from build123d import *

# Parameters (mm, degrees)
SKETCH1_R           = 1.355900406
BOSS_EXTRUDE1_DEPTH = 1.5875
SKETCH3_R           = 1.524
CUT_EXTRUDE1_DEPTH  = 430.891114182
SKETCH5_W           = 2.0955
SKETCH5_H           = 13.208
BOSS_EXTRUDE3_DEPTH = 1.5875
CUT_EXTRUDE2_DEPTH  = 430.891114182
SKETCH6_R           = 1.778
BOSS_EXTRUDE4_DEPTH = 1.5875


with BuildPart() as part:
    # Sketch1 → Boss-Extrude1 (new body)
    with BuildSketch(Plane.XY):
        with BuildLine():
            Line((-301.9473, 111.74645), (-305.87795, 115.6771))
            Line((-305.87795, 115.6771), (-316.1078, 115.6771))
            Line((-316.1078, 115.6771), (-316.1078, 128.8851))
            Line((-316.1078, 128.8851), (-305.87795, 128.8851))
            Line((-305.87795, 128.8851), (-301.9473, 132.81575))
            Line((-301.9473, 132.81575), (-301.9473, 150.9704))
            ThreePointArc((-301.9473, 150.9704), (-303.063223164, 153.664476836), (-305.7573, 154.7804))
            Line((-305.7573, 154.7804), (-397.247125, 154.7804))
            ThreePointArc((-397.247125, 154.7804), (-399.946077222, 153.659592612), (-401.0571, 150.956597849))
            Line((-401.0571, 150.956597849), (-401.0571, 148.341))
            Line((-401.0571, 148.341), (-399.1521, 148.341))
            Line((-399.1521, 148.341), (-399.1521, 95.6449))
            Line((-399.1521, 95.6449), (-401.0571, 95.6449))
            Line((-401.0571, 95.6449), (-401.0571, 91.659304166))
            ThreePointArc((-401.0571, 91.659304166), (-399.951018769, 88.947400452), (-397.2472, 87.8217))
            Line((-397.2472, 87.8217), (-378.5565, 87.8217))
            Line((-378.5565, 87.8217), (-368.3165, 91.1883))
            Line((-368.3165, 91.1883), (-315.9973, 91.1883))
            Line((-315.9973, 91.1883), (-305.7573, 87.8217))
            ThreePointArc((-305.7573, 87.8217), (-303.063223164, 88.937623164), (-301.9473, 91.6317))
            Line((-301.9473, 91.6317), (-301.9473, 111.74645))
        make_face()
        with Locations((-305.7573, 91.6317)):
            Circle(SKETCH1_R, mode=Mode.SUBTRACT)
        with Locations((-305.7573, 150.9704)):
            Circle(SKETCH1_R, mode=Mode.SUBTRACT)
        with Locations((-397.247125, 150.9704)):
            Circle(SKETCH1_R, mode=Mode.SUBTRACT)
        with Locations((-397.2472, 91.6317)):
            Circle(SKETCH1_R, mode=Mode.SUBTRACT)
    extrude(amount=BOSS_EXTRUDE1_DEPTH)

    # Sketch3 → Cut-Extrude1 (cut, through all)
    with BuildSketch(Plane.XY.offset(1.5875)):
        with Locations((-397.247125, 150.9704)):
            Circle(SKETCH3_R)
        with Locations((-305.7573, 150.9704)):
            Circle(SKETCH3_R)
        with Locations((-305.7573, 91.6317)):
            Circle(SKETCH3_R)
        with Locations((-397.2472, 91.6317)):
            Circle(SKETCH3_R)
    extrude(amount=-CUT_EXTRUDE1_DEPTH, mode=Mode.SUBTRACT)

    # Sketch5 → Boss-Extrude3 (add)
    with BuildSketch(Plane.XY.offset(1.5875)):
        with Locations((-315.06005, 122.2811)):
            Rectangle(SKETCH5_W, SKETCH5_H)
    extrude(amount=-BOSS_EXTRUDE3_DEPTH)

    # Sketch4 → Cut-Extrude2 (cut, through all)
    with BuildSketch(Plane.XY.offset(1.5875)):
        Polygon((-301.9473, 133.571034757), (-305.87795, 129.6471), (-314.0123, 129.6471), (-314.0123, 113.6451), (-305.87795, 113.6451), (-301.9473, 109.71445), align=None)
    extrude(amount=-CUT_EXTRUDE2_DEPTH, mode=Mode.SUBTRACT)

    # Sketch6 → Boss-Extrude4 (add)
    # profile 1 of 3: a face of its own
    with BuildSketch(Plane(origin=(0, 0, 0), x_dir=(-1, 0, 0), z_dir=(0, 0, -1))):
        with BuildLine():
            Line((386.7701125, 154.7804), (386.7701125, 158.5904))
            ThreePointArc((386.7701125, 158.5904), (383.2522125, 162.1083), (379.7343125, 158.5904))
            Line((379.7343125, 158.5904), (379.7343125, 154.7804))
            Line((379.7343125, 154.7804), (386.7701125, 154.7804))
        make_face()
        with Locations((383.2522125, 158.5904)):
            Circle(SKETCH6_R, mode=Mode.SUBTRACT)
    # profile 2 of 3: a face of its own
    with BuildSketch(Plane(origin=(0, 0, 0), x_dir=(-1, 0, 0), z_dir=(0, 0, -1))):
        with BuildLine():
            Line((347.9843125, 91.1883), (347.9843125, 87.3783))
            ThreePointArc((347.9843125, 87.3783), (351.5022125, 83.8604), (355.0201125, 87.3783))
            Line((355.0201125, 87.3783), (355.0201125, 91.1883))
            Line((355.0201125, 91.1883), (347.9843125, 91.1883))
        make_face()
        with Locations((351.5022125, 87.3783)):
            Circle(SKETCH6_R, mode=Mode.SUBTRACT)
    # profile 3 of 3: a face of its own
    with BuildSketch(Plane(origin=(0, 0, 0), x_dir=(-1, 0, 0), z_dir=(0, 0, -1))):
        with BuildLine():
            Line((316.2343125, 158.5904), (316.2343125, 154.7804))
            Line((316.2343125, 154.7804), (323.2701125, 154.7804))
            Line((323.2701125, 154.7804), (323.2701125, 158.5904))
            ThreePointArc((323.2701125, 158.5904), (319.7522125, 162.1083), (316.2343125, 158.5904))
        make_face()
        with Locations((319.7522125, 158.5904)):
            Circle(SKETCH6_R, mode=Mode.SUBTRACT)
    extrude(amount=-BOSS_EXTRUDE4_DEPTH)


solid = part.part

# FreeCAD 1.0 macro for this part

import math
import FreeCAD as App
import Part
import Sketcher
Q = App.Units.Quantity


def add_polygon(sketch, points):
    """Adds a closed chain of lines whose ends are joined by coincident constraints."""
    first, n = sketch.GeometryCount, len(points)
    for a, b in zip(points, points[1:] + points[:1]):
        sketch.addGeometry(Part.LineSegment(App.Vector(*a, 0), App.Vector(*b, 0)), False)
    for i in range(n):
        sketch.addConstraint(Sketcher.Constraint("Coincident", first + i, 2, first + (i + 1) % n, 1))

doc = App.newDocument("Part")
params = doc.addObject("Spreadsheet::Sheet", "Params")
for row, (alias, value) in enumerate([
    ("sketch1_radius", "0.15 in"),
    ("sketch1_height", "0.52 in"),
    ("sketch1_width", "0.075 in"),
    ("pad1_length", "0.0625 in"),
    ("sketch2_diameter", "0.12 in"),
    ("sketch3_height", "0.52 in"),
    ("pad2_length", "0.0625 in"),
    ("sketch4_height", "0.63 in"),
    ("sketch5_diameter", "0.14 in"),
    ("sketch5_height", "0.15 in"),
    ("pad3_length", "0.0625 in"),
], start=1):
    params.set(f"A{row}", alias)
    params.set(f"B{row}", "=" + value)
    params.setAlias(f"B{row}", alias)

body = doc.addObject("PartDesign::Body", "Body")

# Sketch on XY plane
sketch1 = body.newObject("Sketcher::SketchObject", "Sketch")
sketch1.AttachmentSupport = (doc.getObject("XY_Plane"), [""])
sketch1.MapMode = "FlatFace"
sketch1.addGeometry(Part.LineSegment(App.Vector(-301.9473, 111.74645, 0), App.Vector(-305.87795, 115.6771, 0)), False)
sketch1.addGeometry(Part.LineSegment(App.Vector(-305.87795, 115.6771, 0), App.Vector(-316.1078, 115.6771, 0)), False)
sketch1.addGeometry(Part.LineSegment(App.Vector(-316.1078, 115.6771, 0), App.Vector(-316.1078, 128.8851, 0)), False)
sketch1.addGeometry(Part.LineSegment(App.Vector(-316.1078, 128.8851, 0), App.Vector(-305.87795, 128.8851, 0)), False)
sketch1.addGeometry(Part.LineSegment(App.Vector(-305.87795, 128.8851, 0), App.Vector(-301.9473, 132.81575, 0)), False)
sketch1.addGeometry(Part.LineSegment(App.Vector(-301.9473, 132.81575, 0), App.Vector(-301.9473, 150.9704, 0)), False)
sketch1.addGeometry(Part.ArcOfCircle(Part.Circle(App.Vector(-305.7573, 150.9704, 0), App.Vector(0, 0, 1), 3.81), math.radians(0), math.radians(90)), False)
sketch1.addGeometry(Part.LineSegment(App.Vector(-305.7573, 154.7804, 0), App.Vector(-397.247125, 154.7804, 0)), False)
sketch1.addGeometry(Part.ArcOfCircle(Part.Circle(App.Vector(-397.247125, 150.9704, 0), App.Vector(0, 0, 1), 3.81), math.radians(90), math.radians(180.207561)), False)
sketch1.addGeometry(Part.LineSegment(App.Vector(-401.0571, 150.956598, 0), App.Vector(-401.0571, 148.341, 0)), False)
sketch1.addGeometry(Part.LineSegment(App.Vector(-401.0571, 148.341, 0), App.Vector(-399.1521, 148.341, 0)), False)
sketch1.addGeometry(Part.LineSegment(App.Vector(-399.1521, 148.341, 0), App.Vector(-399.1521, 95.6449, 0)), False)
sketch1.addGeometry(Part.LineSegment(App.Vector(-399.1521, 95.6449, 0), App.Vector(-401.0571, 95.6449, 0)), False)
sketch1.addGeometry(Part.LineSegment(App.Vector(-401.0571, 95.6449, 0), App.Vector(-401.0571, 91.659304, 0)), False)
sketch1.addGeometry(Part.ArcOfCircle(Part.Circle(App.Vector(-397.2472, 91.6317, 0), App.Vector(0, 0, 1), 3.81), math.radians(179.584878), math.radians(270)), False)
sketch1.addGeometry(Part.LineSegment(App.Vector(-397.2472, 87.8217, 0), App.Vector(-378.5565, 87.8217, 0)), False)
sketch1.addGeometry(Part.LineSegment(App.Vector(-378.5565, 87.8217, 0), App.Vector(-368.3165, 91.1883, 0)), False)
sketch1.addGeometry(Part.LineSegment(App.Vector(-368.3165, 91.1883, 0), App.Vector(-315.9973, 91.1883, 0)), False)
sketch1.addGeometry(Part.LineSegment(App.Vector(-315.9973, 91.1883, 0), App.Vector(-305.7573, 87.8217, 0)), False)
sketch1.addGeometry(Part.ArcOfCircle(Part.Circle(App.Vector(-305.7573, 91.6317, 0), App.Vector(0, 0, 1), 3.81), math.radians(-90), math.radians(0)), False)
sketch1.addGeometry(Part.LineSegment(App.Vector(-301.9473, 91.6317, 0), App.Vector(-301.9473, 111.74645, 0)), False)
sketch1.addGeometry(Part.Circle(App.Vector(-397.2472, 91.6317, 0), App.Vector(0, 0, 1), 1.3559), False)
sketch1.addGeometry(Part.Circle(App.Vector(-305.7573, 91.6317, 0), App.Vector(0, 0, 1), 1.3559), False)
sketch1.addGeometry(Part.Circle(App.Vector(-397.247125, 150.9704, 0), App.Vector(0, 0, 1), 1.3559), False)
sketch1.addGeometry(Part.Circle(App.Vector(-305.7573, 150.9704, 0), App.Vector(0, 0, 1), 1.3559), False)
sketch1.addConstraint(Sketcher.Constraint("Coincident", 0, 2, 1, 1))
sketch1.addConstraint(Sketcher.Constraint("Coincident", 1, 2, 2, 1))
sketch1.addConstraint(Sketcher.Constraint("Coincident", 2, 2, 3, 1))
sketch1.addConstraint(Sketcher.Constraint("Coincident", 3, 2, 4, 1))
sketch1.addConstraint(Sketcher.Constraint("Coincident", 4, 2, 5, 1))
sketch1.addConstraint(Sketcher.Constraint("Tangent", 5, 2, 6, 1))
sketch1.addConstraint(Sketcher.Constraint("Tangent", 6, 2, 7, 1))
sketch1.addConstraint(Sketcher.Constraint("Tangent", 7, 2, 8, 1))
sketch1.addConstraint(Sketcher.Constraint("Coincident", 8, 2, 9, 1))
sketch1.addConstraint(Sketcher.Constraint("Coincident", 9, 2, 10, 1))
sketch1.addConstraint(Sketcher.Constraint("Coincident", 10, 2, 11, 1))
sketch1.addConstraint(Sketcher.Constraint("Coincident", 11, 2, 12, 1))
sketch1.addConstraint(Sketcher.Constraint("Coincident", 12, 2, 13, 1))
sketch1.addConstraint(Sketcher.Constraint("Coincident", 13, 2, 14, 1))
sketch1.addConstraint(Sketcher.Constraint("Tangent", 14, 2, 15, 1))
sketch1.addConstraint(Sketcher.Constraint("Coincident", 15, 2, 16, 1))
sketch1.addConstraint(Sketcher.Constraint("Coincident", 16, 2, 17, 1))
sketch1.addConstraint(Sketcher.Constraint("Coincident", 17, 2, 18, 1))
sketch1.addConstraint(Sketcher.Constraint("Coincident", 18, 2, 19, 1))
sketch1.addConstraint(Sketcher.Constraint("Tangent", 19, 2, 20, 1))
sketch1.addConstraint(Sketcher.Constraint("Coincident", 20, 2, 0, 1))
sketch1.addConstraint(Sketcher.Constraint("Horizontal", 1))
sketch1.addConstraint(Sketcher.Constraint("Vertical", 2))
sketch1.addConstraint(Sketcher.Constraint("Horizontal", 3))
sketch1.addConstraint(Sketcher.Constraint("Vertical", 5))
sketch1.addConstraint(Sketcher.Constraint("Horizontal", 7))
sketch1.addConstraint(Sketcher.Constraint("Vertical", 9))
sketch1.addConstraint(Sketcher.Constraint("Horizontal", 10))
sketch1.addConstraint(Sketcher.Constraint("Vertical", 11))
sketch1.addConstraint(Sketcher.Constraint("Horizontal", 12))
sketch1.addConstraint(Sketcher.Constraint("Vertical", 13))
sketch1.addConstraint(Sketcher.Constraint("Horizontal", 15))
sketch1.addConstraint(Sketcher.Constraint("Horizontal", 17))
sketch1.addConstraint(Sketcher.Constraint("Vertical", 20))
sketch1.addConstraint(Sketcher.Constraint("Coincident", 21, 3, 14, 3))
sketch1.addConstraint(Sketcher.Constraint("Coincident", 22, 3, 19, 3))
sketch1.addConstraint(Sketcher.Constraint("Coincident", 23, 3, 8, 3))
sketch1.addConstraint(Sketcher.Constraint("Coincident", 24, 3, 6, 3))
sketch1.addConstraint(Sketcher.Constraint("Equal", 6, 8))
sketch1.addConstraint(Sketcher.Constraint("Equal", 8, 14))
sketch1.addConstraint(Sketcher.Constraint("Equal", 14, 19))
sketch1.addConstraint(Sketcher.Constraint("Equal", 21, 22))
sketch1.addConstraint(Sketcher.Constraint("Equal", 22, 23))
sketch1.addConstraint(Sketcher.Constraint("Equal", 23, 24))
sketch1.addConstraint(Sketcher.Constraint("Perpendicular", 0, 4))
sketch1.addConstraint(Sketcher.Constraint("Horizontal", 14, 3, 19, 3))
sketch1.addConstraint(Sketcher.Constraint("Vertical", 6, 3, 19, 3))
sketch1.addConstraint(Sketcher.Constraint("Vertical", 0, 2, 3, 2))
sketch1.addConstraint(Sketcher.Constraint("Vertical", 9, 2, 12, 2))
sketch1.addConstraint(Sketcher.Constraint("Vertical", 6, 2, 18, 2))
sketch1.addConstraint(Sketcher.Constraint("Equal", 0, 4))
sketch1.addConstraint(Sketcher.Constraint("Equal", 16, 18))
sketch1.addConstraint(Sketcher.Constraint("Radius", 6, Q("0.15 in")))
sketch1.addConstraint(Sketcher.Constraint("DistanceY", 2, 1, 2, 2, Q("0.52 in")))
sketch1.addConstraint(Sketcher.Constraint("Diameter", 21, 2.711801))
sketch1.addConstraint(Sketcher.Constraint("DistanceX", 10, 1, 10, 2, Q("0.075 in")))
sketch1.addConstraint(Sketcher.Constraint("DistanceY", 14, 3, 11, 2, Q("0.158 in")))
sketch1.addConstraint(Sketcher.Constraint("DistanceX", 11, 2, 16, 2, Q("1.214 in")))
sketch1.addConstraint(Sketcher.Constraint("DistanceX", 15, 1, 15, 2, 18.6907))
sketch1.addConstraint(Sketcher.Constraint("DistanceX", 17, 1, 17, 2, 52.3192))
sketch1.addConstraint(Sketcher.Constraint("DistanceY", 11, 2, 11, 1, 52.6961))
sketch1.addConstraint(Sketcher.Constraint("DistanceY", 0, 2, 6, 3, Q("1.3895 in")))
sketch1.addConstraint(Sketcher.Constraint("DistanceX", 1, 2, 19, 3, Q("0.4075 in")))
sketch1.addConstraint(Sketcher.Constraint("DistanceX", 1, 2, 1, 1, 10.22985))
sketch1.addConstraint(Sketcher.Constraint("DistanceY", 20, 1, 20, 2, 20.11475))
sketch1.addConstraint(Sketcher.Constraint("DistanceX", 6, 3, -1, 1, 305.7573))
sketch1.addConstraint(Sketcher.Constraint("DistanceY", -1, 1, 6, 3, 150.9704))
sketch1.addConstraint(Sketcher.Constraint("DistanceX", 14, 3, -1, 1, 397.2472))
sketch1.addConstraint(Sketcher.Constraint("DistanceY", -1, 1, 16, 2, 91.1883))
sketch1.addConstraint(Sketcher.Constraint("DistanceX", 7, 2, 7, 1, 91.489825))
sketch1.setExpression("Constraints[52]", "Params.sketch1_radius")
sketch1.setExpression("Constraints[53]", "Params.sketch1_height")
sketch1.setExpression("Constraints[55]", "Params.sketch1_width")
pad1 = body.newObject("PartDesign::Pad", "Pad")
pad1.Profile = sketch1
pad1.setExpression("Length", "Params.pad1_length")

# Sketch on XY plane
sketch2 = body.newObject("Sketcher::SketchObject", "Sketch001")
sketch2.AttachmentSupport = (doc.getObject("XY_Plane"), [""])
sketch2.MapMode = "FlatFace"
sketch2.AttachmentOffset = App.Placement(App.Vector(0, 0, 0.0625 * 25.4), App.Rotation())
sketch2.addGeometry(Part.Circle(App.Vector(-397.2, 151, 0), App.Vector(0, 0, 1), 1.5), False)
sketch2.addGeometry(Part.Circle(App.Vector(-305.8, 151, 0), App.Vector(0, 0, 1), 1.5), False)
sketch2.addGeometry(Part.Circle(App.Vector(-305.8, 91.6, 0), App.Vector(0, 0, 1), 1.5), False)
sketch2.addGeometry(Part.Circle(App.Vector(-397.2, 91.6, 0), App.Vector(0, 0, 1), 1.5), False)
sketch2.addConstraint(Sketcher.Constraint("Equal", 0, 1))
sketch2.addConstraint(Sketcher.Constraint("Equal", 1, 2))
sketch2.addConstraint(Sketcher.Constraint("Equal", 2, 3))
sketch2.addConstraint(Sketcher.Constraint("Horizontal", 0, 3, 1, 3))
sketch2.addConstraint(Sketcher.Constraint("Horizontal", 2, 3, 3, 3))
sketch2.addConstraint(Sketcher.Constraint("Vertical", 1, 3, 2, 3))
sketch2.addConstraint(Sketcher.Constraint("Diameter", 0, Q("0.12 in")))
sketch2.addConstraint(Sketcher.Constraint("DistanceY", -1, 1, 0, 3, 150.9704))
sketch2.addConstraint(Sketcher.Constraint("DistanceX", 1, 3, -1, 1, 305.7573))
sketch2.addConstraint(Sketcher.Constraint("DistanceY", -1, 1, 2, 3, 91.6317))
sketch2.addConstraint(Sketcher.Constraint("DistanceX", 3, 3, -1, 1, 397.2472))
sketch2.addConstraint(Sketcher.Constraint("DistanceX", 0, 3, -1, 1, 397.247125))
sketch2.setExpression("Constraints[6]", "Params.sketch2_diameter")
pocket1 = body.newObject("PartDesign::Pocket", "Pocket")
pocket1.Profile = sketch2
pocket1.Type = "ThroughAll"

# Sketch on XY plane
sketch3 = body.newObject("Sketcher::SketchObject", "Sketch002")
sketch3.AttachmentSupport = (doc.getObject("XY_Plane"), [""])
sketch3.MapMode = "FlatFace"
sketch3.AttachmentOffset = App.Placement(App.Vector(0, 0, 0.0625 * 25.4), App.Rotation())
add_polygon(sketch3, [(-316.1, 128.9), (-316.1, 115.7), (-314, 115.7), (-314, 128.9)])  # lines 0-3
sketch3.addConstraint(Sketcher.Constraint("Vertical", 0))
sketch3.addConstraint(Sketcher.Constraint("Horizontal", 1))
sketch3.addConstraint(Sketcher.Constraint("Vertical", 2))
sketch3.addConstraint(Sketcher.Constraint("Horizontal", 3))
sketch3.addConstraint(Sketcher.Constraint("DistanceY", 0, 2, 0, 1, Q("0.52 in")))
sketch3.addConstraint(Sketcher.Constraint("DistanceX", 1, 1, 1, 2, Q("0.0825 in")))
sketch3.addConstraint(Sketcher.Constraint("DistanceX", 0, 2, -1, 1, 316.1078))
sketch3.addConstraint(Sketcher.Constraint("DistanceY", -1, 1, 0, 2, 115.6771))
sketch3.setExpression("Constraints[8]", "Params.sketch3_height")
pad2 = body.newObject("PartDesign::Pad", "Pad001")
pad2.Profile = sketch3
pad2.setExpression("Length", "Params.pad2_length")
pad2.Reversed = True

# Sketch on XY plane
sketch4 = body.newObject("Sketcher::SketchObject", "Sketch003")
sketch4.AttachmentSupport = (doc.getObject("XY_Plane"), [""])
sketch4.MapMode = "FlatFace"
sketch4.AttachmentOffset = App.Placement(App.Vector(0, 0, 0.0625 * 25.4), App.Rotation())
add_polygon(sketch4, [(-302, 134), (-306, 130), (-314, 130), (-314, 114), (-306, 114), (-302, 110)])  # lines 0-5
sketch4.addConstraint(Sketcher.Constraint("Horizontal", 1))
sketch4.addConstraint(Sketcher.Constraint("Vertical", 2))
sketch4.addConstraint(Sketcher.Constraint("Horizontal", 3))
sketch4.addConstraint(Sketcher.Constraint("Vertical", 5))
sketch4.addConstraint(Sketcher.Constraint("Vertical", 0, 2, 3, 2))
sketch4.addConstraint(Sketcher.Constraint("Angle", 4, Q("-45 deg")))
sketch4.addConstraint(Sketcher.Constraint("DistanceY", 2, 2, 2, 1, Q("0.63 in")))
sketch4.addConstraint(Sketcher.Constraint("DistanceX", 2, 2, 4, 2, Q("0.475 in")))
sketch4.addConstraint(Sketcher.Constraint("DistanceX", 1, 2, 1, 1, 8.13435))
sketch4.addConstraint(Sketcher.Constraint("DistanceY", -1, 1, 0, 2, 129.6471))
sketch4.addConstraint(Sketcher.Constraint("DistanceX", 1, 2, -1, 1, 314.0123))
sketch4.addConstraint(Sketcher.Constraint("DistanceY", 5, 1, 5, 2, 23.856585))
sketch4.setExpression("Constraints[12]", "Params.sketch4_height")
pocket2 = body.newObject("PartDesign::Pocket", "Pocket001")
pocket2.Profile = sketch4
pocket2.Type = "ThroughAll"

# Sketch on XY plane
sketch5 = body.newObject("Sketcher::SketchObject", "Sketch004")
sketch5.AttachmentSupport = (doc.getObject("XY_Plane"), [""])
sketch5.MapMode = "FlatFace"
sketch5.addGeometry(Part.LineSegment(App.Vector(-386.8, 154.8, 0), App.Vector(-386.8, 158.6, 0)), False)
sketch5.addGeometry(Part.ArcOfCircle(Part.Circle(App.Vector(-383.3, 158.6, 0), App.Vector(0, 0, 1), 3.5), math.radians(0), math.radians(180)), False)
sketch5.addGeometry(Part.LineSegment(App.Vector(-379.7, 158.6, 0), App.Vector(-379.7, 154.8, 0)), False)
sketch5.addGeometry(Part.LineSegment(App.Vector(-379.7, 154.8, 0), App.Vector(-386.8, 154.8, 0)), False)
sketch5.addGeometry(Part.Circle(App.Vector(-383.3, 158.6, 0), App.Vector(0, 0, 1), 1.8), False)
sketch5.addGeometry(Part.LineSegment(App.Vector(-348, 91.2, 0), App.Vector(-348, 87.4, 0)), False)
sketch5.addGeometry(Part.ArcOfCircle(Part.Circle(App.Vector(-351.5, 87.4, 0), App.Vector(0, 0, 1), 3.5), math.radians(180), math.radians(360)), False)
sketch5.addGeometry(Part.LineSegment(App.Vector(-355, 87.4, 0), App.Vector(-355, 91.2, 0)), False)
sketch5.addGeometry(Part.LineSegment(App.Vector(-355, 91.2, 0), App.Vector(-348, 91.2, 0)), False)
sketch5.addGeometry(Part.Circle(App.Vector(-351.5, 87.4, 0), App.Vector(0, 0, 1), 1.8), False)
sketch5.addGeometry(Part.LineSegment(App.Vector(-316.2, 158.6, 0), App.Vector(-316.2, 154.8, 0)), False)
sketch5.addGeometry(Part.LineSegment(App.Vector(-316.2, 154.8, 0), App.Vector(-323.3, 154.8, 0)), False)
sketch5.addGeometry(Part.LineSegment(App.Vector(-323.3, 154.8, 0), App.Vector(-323.3, 158.6, 0)), False)
sketch5.addGeometry(Part.ArcOfCircle(Part.Circle(App.Vector(-319.8, 158.6, 0), App.Vector(0, 0, 1), 3.5), math.radians(0), math.radians(180)), False)
sketch5.addGeometry(Part.Circle(App.Vector(-319.8, 158.6, 0), App.Vector(0, 0, 1), 1.8), False)
sketch5.addConstraint(Sketcher.Constraint("Tangent", 0, 2, 1, 2))
sketch5.addConstraint(Sketcher.Constraint("Tangent", 1, 1, 2, 1))
sketch5.addConstraint(Sketcher.Constraint("Coincident", 2, 2, 3, 1))
sketch5.addConstraint(Sketcher.Constraint("Coincident", 3, 2, 0, 1))
sketch5.addConstraint(Sketcher.Constraint("Tangent", 5, 2, 6, 2))
sketch5.addConstraint(Sketcher.Constraint("Tangent", 6, 1, 7, 1))
sketch5.addConstraint(Sketcher.Constraint("Coincident", 7, 2, 8, 1))
sketch5.addConstraint(Sketcher.Constraint("Coincident", 8, 2, 5, 1))
sketch5.addConstraint(Sketcher.Constraint("Coincident", 10, 2, 11, 1))
sketch5.addConstraint(Sketcher.Constraint("Coincident", 11, 2, 12, 1))
sketch5.addConstraint(Sketcher.Constraint("Tangent", 12, 2, 13, 2))
sketch5.addConstraint(Sketcher.Constraint("Tangent", 13, 1, 10, 1))
sketch5.addConstraint(Sketcher.Constraint("Vertical", 0))
sketch5.addConstraint(Sketcher.Constraint("Vertical", 2))
sketch5.addConstraint(Sketcher.Constraint("Horizontal", 3))
sketch5.addConstraint(Sketcher.Constraint("Vertical", 5))
sketch5.addConstraint(Sketcher.Constraint("Vertical", 7))
sketch5.addConstraint(Sketcher.Constraint("Horizontal", 8))
sketch5.addConstraint(Sketcher.Constraint("Vertical", 10))
sketch5.addConstraint(Sketcher.Constraint("Horizontal", 11))
sketch5.addConstraint(Sketcher.Constraint("Vertical", 12))
sketch5.addConstraint(Sketcher.Constraint("Coincident", 4, 3, 1, 3))
sketch5.addConstraint(Sketcher.Constraint("Coincident", 9, 3, 6, 3))
sketch5.addConstraint(Sketcher.Constraint("Coincident", 14, 3, 13, 3))
sketch5.addConstraint(Sketcher.Constraint("Equal", 1, 6))
sketch5.addConstraint(Sketcher.Constraint("Equal", 4, 9))
sketch5.addConstraint(Sketcher.Constraint("Equal", 6, 13))
sketch5.addConstraint(Sketcher.Constraint("Equal", 9, 14))
sketch5.addConstraint(Sketcher.Constraint("Horizontal", 4, 3, 13, 3))
sketch5.addConstraint(Sketcher.Constraint("Horizontal", 3, 2, 10, 2))
sketch5.addConstraint(Sketcher.Constraint("Equal", 2, 5))
sketch5.addConstraint(Sketcher.Constraint("Diameter", 4, Q("0.14 in")))
sketch5.addConstraint(Sketcher.Constraint("DistanceY", 0, 1, 0, 2, Q("0.15 in")))
sketch5.addConstraint(Sketcher.Constraint("Radius", 1, Q("0.1385 in")))
sketch5.addConstraint(Sketcher.Constraint("DistanceX", 1, 3, 13, 3, Q("2.5 in")))
sketch5.addConstraint(Sketcher.Constraint("DistanceX", 1, 3, 6, 3, Q("1.25 in")))
sketch5.addConstraint(Sketcher.Constraint("DistanceY", -1, 1, 1, 3, 158.5904))
sketch5.addConstraint(Sketcher.Constraint("DistanceY", -1, 1, 6, 3, 87.3783))
sketch5.addConstraint(Sketcher.Constraint("DistanceX", 1, 3, -1, 1, 383.252212))
sketch5.setExpression("Constraints[31]", "Params.sketch5_diameter")
sketch5.setExpression("Constraints[32]", "Params.sketch5_height")
pad3 = body.newObject("PartDesign::Pad", "Pad002")
pad3.Profile = sketch5
pad3.setExpression("Length", "Params.pad3_length")

doc.recompute()
